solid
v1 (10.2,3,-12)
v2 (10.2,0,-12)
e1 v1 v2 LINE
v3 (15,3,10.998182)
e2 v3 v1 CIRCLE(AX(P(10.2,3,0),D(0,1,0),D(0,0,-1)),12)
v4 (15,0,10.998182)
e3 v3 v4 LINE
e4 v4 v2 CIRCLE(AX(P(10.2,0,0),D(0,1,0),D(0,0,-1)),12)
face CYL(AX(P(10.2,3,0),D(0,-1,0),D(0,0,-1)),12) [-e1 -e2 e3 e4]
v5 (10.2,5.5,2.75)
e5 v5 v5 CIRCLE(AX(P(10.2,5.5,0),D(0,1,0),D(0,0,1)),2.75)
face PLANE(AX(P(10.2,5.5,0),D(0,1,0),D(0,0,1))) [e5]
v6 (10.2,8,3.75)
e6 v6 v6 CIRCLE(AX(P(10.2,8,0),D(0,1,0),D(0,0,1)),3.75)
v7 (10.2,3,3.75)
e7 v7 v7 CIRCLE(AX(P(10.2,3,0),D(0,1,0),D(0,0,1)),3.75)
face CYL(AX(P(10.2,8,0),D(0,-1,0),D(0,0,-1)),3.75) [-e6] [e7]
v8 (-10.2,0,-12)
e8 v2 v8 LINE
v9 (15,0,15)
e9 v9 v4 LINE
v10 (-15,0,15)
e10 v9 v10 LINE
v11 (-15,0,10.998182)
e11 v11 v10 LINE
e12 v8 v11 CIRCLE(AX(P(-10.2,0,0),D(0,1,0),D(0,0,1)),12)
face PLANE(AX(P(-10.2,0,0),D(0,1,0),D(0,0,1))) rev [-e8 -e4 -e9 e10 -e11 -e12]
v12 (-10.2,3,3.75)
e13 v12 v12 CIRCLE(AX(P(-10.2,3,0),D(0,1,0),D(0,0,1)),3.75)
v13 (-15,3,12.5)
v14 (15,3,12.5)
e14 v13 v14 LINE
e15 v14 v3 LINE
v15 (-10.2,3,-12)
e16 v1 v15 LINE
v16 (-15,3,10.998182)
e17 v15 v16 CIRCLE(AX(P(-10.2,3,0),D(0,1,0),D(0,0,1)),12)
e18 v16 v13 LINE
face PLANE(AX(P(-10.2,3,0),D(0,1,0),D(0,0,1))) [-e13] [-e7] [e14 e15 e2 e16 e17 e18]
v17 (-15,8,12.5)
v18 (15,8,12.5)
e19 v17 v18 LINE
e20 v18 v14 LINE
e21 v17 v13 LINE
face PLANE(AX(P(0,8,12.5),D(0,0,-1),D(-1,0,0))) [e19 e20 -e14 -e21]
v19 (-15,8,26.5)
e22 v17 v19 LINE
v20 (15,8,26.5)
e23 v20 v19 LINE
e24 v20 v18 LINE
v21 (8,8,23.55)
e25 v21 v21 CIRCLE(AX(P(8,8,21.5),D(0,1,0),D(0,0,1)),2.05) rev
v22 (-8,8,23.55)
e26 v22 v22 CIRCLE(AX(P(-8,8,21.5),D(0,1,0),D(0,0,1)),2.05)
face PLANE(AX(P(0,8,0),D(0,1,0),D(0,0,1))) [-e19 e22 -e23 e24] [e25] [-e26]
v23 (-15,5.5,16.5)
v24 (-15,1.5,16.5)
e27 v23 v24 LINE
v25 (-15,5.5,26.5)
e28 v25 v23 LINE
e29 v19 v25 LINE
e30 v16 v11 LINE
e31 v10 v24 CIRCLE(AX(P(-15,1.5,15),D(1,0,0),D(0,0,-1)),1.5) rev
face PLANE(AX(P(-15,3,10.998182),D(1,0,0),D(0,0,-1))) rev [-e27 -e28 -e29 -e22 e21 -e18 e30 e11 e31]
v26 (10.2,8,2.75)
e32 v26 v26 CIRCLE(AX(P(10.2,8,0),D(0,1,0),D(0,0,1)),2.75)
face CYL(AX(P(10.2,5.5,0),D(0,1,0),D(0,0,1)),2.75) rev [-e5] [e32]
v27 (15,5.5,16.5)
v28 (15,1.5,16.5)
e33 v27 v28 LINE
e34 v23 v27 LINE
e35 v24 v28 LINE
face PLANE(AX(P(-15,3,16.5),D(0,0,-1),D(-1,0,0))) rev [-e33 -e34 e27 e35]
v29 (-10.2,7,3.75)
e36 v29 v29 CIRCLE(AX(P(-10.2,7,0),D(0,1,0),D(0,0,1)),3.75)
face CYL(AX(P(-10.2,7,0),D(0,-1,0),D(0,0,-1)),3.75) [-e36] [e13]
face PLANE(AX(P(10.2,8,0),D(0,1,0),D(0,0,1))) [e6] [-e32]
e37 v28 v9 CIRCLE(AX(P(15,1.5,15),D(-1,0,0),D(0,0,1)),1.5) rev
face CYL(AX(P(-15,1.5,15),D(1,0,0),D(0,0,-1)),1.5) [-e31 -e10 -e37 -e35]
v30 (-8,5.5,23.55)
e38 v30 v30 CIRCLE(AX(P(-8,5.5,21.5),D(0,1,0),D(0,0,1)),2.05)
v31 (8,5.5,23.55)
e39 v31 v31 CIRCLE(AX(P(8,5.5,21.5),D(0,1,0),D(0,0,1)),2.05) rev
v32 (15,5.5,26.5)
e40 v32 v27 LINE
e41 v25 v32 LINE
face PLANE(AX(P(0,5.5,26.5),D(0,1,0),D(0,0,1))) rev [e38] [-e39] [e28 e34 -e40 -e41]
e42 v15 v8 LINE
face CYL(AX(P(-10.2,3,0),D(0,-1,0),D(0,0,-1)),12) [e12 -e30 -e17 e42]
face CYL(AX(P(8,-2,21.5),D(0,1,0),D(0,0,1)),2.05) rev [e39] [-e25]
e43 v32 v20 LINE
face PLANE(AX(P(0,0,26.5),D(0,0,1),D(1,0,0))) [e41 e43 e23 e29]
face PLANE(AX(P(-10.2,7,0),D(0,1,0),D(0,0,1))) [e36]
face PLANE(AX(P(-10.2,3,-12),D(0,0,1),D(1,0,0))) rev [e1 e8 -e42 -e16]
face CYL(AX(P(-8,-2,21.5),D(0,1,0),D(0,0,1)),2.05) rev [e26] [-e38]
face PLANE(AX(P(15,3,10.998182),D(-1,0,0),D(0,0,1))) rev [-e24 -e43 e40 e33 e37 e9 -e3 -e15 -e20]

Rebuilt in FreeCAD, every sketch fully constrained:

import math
import FreeCAD as App
import Part
import Sketcher
Q = App.Units.Quantity


def edges_at(feature, points):
    """Names of the edges that pass closest to the given points."""
    edges = feature.Shape.Edges
    near = lambda p: min(range(len(edges)), key=lambda i: edges[i].distToShape(Part.Vertex(*p))[0])
    return sorted({f"Edge{near(p) + 1}" for p in points})

doc = App.newDocument("Part")
body = doc.addObject("PartDesign::Body", "Body")

sketch1 = body.newObject("Sketcher::SketchObject", "Sketch")
sketch1.AttachmentSupport = (doc.getObject("XZ_Plane"), [""])
sketch1.MapMode = "FlatFace"
sketch1.addGeometry(Part.LineSegment(App.Vector(10.2, -12, 0), App.Vector(-10.2, -12, 0)), False)
sketch1.addGeometry(Part.ArcOfCircle(Part.Circle(App.Vector(-10.2, 0, 0), App.Vector(0, 0, 1), 12), math.radians(113.578178), math.radians(270)), False)
sketch1.addGeometry(Part.LineSegment(App.Vector(-15, 10.998182, 0), App.Vector(-15, 16.5, 0)), False)
sketch1.addGeometry(Part.LineSegment(App.Vector(-15, 16.5, 0), App.Vector(15, 16.5, 0)), False)
sketch1.addGeometry(Part.LineSegment(App.Vector(15, 16.5, 0), App.Vector(15, 10.998182, 0)), False)
sketch1.addGeometry(Part.ArcOfCircle(Part.Circle(App.Vector(10.2, 0, 0), App.Vector(0, 0, 1), 12), math.radians(-90), math.radians(66.421822)), False)
sketch1.addConstraint(Sketcher.Constraint("Tangent", 0, 2, 1, 2))
sketch1.addConstraint(Sketcher.Constraint("Coincident", 1, 1, 2, 1))
sketch1.addConstraint(Sketcher.Constraint("Coincident", 2, 2, 3, 1))
sketch1.addConstraint(Sketcher.Constraint("Coincident", 3, 2, 4, 1))
sketch1.addConstraint(Sketcher.Constraint("Coincident", 4, 2, 5, 2))
sketch1.addConstraint(Sketcher.Constraint("Tangent", 5, 1, 0, 1))
sketch1.addConstraint(Sketcher.Constraint("Horizontal", 0))
sketch1.addConstraint(Sketcher.Constraint("Vertical", 2))
sketch1.addConstraint(Sketcher.Constraint("Horizontal", 3))
sketch1.addConstraint(Sketcher.Constraint("Vertical", 4))
sketch1.addConstraint(Sketcher.Constraint("Equal", 1, 5))
sketch1.addConstraint(Sketcher.Constraint("Symmetric", 1, 3, 5, 3, -1, 1))
sketch1.addConstraint(Sketcher.Constraint("Horizontal", 1, 1, 4, 2))
sketch1.addConstraint(Sketcher.Constraint("Radius", 1, Q("12 mm")))
sketch1.addConstraint(Sketcher.Constraint("DistanceX", 3, 1, 3, 2, Q("30 mm")))
sketch1.addConstraint(Sketcher.Constraint("DistanceX", 0, 2, 0, 1, Q("20.4 mm")))
sketch1.addConstraint(Sketcher.Constraint("DistanceY", -1, 1, 2, 2, Q("16.5 mm")))
pad1 = body.newObject("PartDesign::Pad", "Pad")
pad1.Profile = sketch1
pad1.Length = 3
pad1.Reversed = True

sketch2 = body.newObject("Sketcher::SketchObject", "Sketch001")
sketch2.AttachmentSupport = (doc.getObject("XZ_Plane"), [""])
sketch2.MapMode = "FlatFace"
sketch2.AttachmentOffset = App.Placement(App.Vector(0, 0, -3), App.Rotation())
sketch2.addGeometry(Part.Circle(App.Vector(10.2, 0, 0), App.Vector(0, 0, 1), 3.75), False)
sketch2.addConstraint(Sketcher.Constraint("PointOnObject", 0, 3, -1))
sketch2.addConstraint(Sketcher.Constraint("Diameter", 0, Q("7.5 mm")))
sketch2.addConstraint(Sketcher.Constraint("DistanceX", -1, 1, 0, 3, Q("10.2 mm")))
pad2 = body.newObject("PartDesign::Pad", "Pad001")
pad2.Profile = sketch2
pad2.Length = 5
pad2.Reversed = True

sketch3 = body.newObject("Sketcher::SketchObject", "Sketch002")
sketch3.AttachmentSupport = (doc.getObject("XZ_Plane"), [""])
sketch3.MapMode = "FlatFace"
sketch3.AttachmentOffset = App.Placement(App.Vector(0, 0, -3), App.Rotation())
sketch3.addGeometry(Part.LineSegment(App.Vector(-15, 12.5, 0), App.Vector(-15, 16.5, 0)), False)
sketch3.addGeometry(Part.LineSegment(App.Vector(-15, 16.5, 0), App.Vector(15, 16.5, 0)), False)
sketch3.addGeometry(Part.LineSegment(App.Vector(15, 16.5, 0), App.Vector(15, 12.5, 0)), False)
sketch3.addGeometry(Part.LineSegment(App.Vector(15, 12.5, 0), App.Vector(-15, 12.5, 0)), False)
sketch3.addConstraint(Sketcher.Constraint("Coincident", 0, 2, 1, 1))
sketch3.addConstraint(Sketcher.Constraint("Coincident", 1, 2, 2, 1))
sketch3.addConstraint(Sketcher.Constraint("Coincident", 2, 2, 3, 1))
sketch3.addConstraint(Sketcher.Constraint("Coincident", 3, 2, 0, 1))
sketch3.addConstraint(Sketcher.Constraint("Vertical", 0))
sketch3.addConstraint(Sketcher.Constraint("Horizontal", 1))
sketch3.addConstraint(Sketcher.Constraint("Vertical", 2))
sketch3.addConstraint(Sketcher.Constraint("Horizontal", 3))
sketch3.addConstraint(Sketcher.Constraint("DistanceX", 1, 1, 1, 2, Q("30 mm")))
sketch3.addConstraint(Sketcher.Constraint("DistanceY", 0, 1, 0, 2, Q("4 mm")))
sketch3.addConstraint(Sketcher.Constraint("DistanceX", 0, 2, -1, 1, Q("15 mm")))
sketch3.addConstraint(Sketcher.Constraint("DistanceY", -1, 1, 0, 2, Q("16.5 mm")))
pad3 = body.newObject("PartDesign::Pad", "Pad002")
pad3.Profile = sketch3
pad3.Length = 5
pad3.Reversed = True

sketch4 = body.newObject("Sketcher::SketchObject", "Sketch003")
sketch4.AttachmentSupport = (doc.getObject("XY_Plane"), [""])
sketch4.MapMode = "FlatFace"
sketch4.AttachmentOffset = App.Placement(App.Vector(0, 0, 16.5), App.Rotation())
sketch4.addGeometry(Part.LineSegment(App.Vector(-15, 8, 0), App.Vector(-15, 5.5, 0)), False)
sketch4.addGeometry(Part.LineSegment(App.Vector(-15, 5.5, 0), App.Vector(15, 5.5, 0)), False)
sketch4.addGeometry(Part.LineSegment(App.Vector(15, 5.5, 0), App.Vector(15, 8, 0)), False)
sketch4.addGeometry(Part.LineSegment(App.Vector(15, 8, 0), App.Vector(-15, 8, 0)), False)
sketch4.addConstraint(Sketcher.Constraint("Coincident", 0, 2, 1, 1))
sketch4.addConstraint(Sketcher.Constraint("Coincident", 1, 2, 2, 1))
sketch4.addConstraint(Sketcher.Constraint("Coincident", 2, 2, 3, 1))
sketch4.addConstraint(Sketcher.Constraint("Coincident", 3, 2, 0, 1))
sketch4.addConstraint(Sketcher.Constraint("Vertical", 0))
sketch4.addConstraint(Sketcher.Constraint("Horizontal", 1))
sketch4.addConstraint(Sketcher.Constraint("Vertical", 2))
sketch4.addConstraint(Sketcher.Constraint("Horizontal", 3))
sketch4.addConstraint(Sketcher.Constraint("DistanceX", 1, 1, 1, 2, Q("30 mm")))
sketch4.addConstraint(Sketcher.Constraint("DistanceY", 0, 2, 0, 1, Q("2.5 mm")))
sketch4.addConstraint(Sketcher.Constraint("DistanceX", 0, 2, -1, 1, Q("15 mm")))
sketch4.addConstraint(Sketcher.Constraint("DistanceY", -1, 1, 2, 2, Q("8 mm")))
pad4 = body.newObject("PartDesign::Pad", "Pad003")
pad4.Profile = sketch4
pad4.Length = 10

sketch5 = body.newObject("Sketcher::SketchObject", "Sketch004")
sketch5.AttachmentSupport = (doc.getObject("XZ_Plane"), [""])
sketch5.MapMode = "FlatFace"
sketch5.AttachmentOffset = App.Placement(App.Vector(0, 0, -8), App.Rotation())
sketch5.addGeometry(Part.Circle(App.Vector(8, 21.5, 0), App.Vector(0, 0, 1), 2.05), False)
sketch5.addGeometry(Part.Circle(App.Vector(-8, 21.5, 0), App.Vector(0, 0, 1), 2.05), False)
sketch5.addConstraint(Sketcher.Constraint("Equal", 0, 1))
sketch5.addConstraint(Sketcher.Constraint("Symmetric", 0, 3, 1, 3, -2))
sketch5.addConstraint(Sketcher.Constraint("Diameter", 0, Q("4.1 mm")))
sketch5.addConstraint(Sketcher.Constraint("DistanceX", -1, 1, 0, 3, Q("8 mm")))
sketch5.addConstraint(Sketcher.Constraint("DistanceY", -1, 1, 0, 3, Q("21.5 mm")))
pocket1 = body.newObject("PartDesign::Pocket", "Pocket")
pocket1.Profile = sketch5
pocket1.Length = 10
pocket1.Reversed = True

sketch6 = body.newObject("Sketcher::SketchObject", "Sketch005")
sketch6.AttachmentSupport = (doc.getObject("XZ_Plane"), [""])
sketch6.MapMode = "FlatFace"
sketch6.AttachmentOffset = App.Placement(App.Vector(0, 0, -8), App.Rotation())
sketch6.addGeometry(Part.Circle(App.Vector(10.2, 0, 0), App.Vector(0, 0, 1), 2.75), False)
sketch6.addConstraint(Sketcher.Constraint("PointOnObject", 0, 3, -1))
sketch6.addConstraint(Sketcher.Constraint("Diameter", 0, Q("5.5 mm")))
sketch6.addConstraint(Sketcher.Constraint("DistanceX", -1, 1, 0, 3, Q("10.2 mm")))
pocket2 = body.newObject("PartDesign::Pocket", "Pocket001")
pocket2.Profile = sketch6
pocket2.Length = 2.5
pocket2.Reversed = True

sketch7 = body.newObject("Sketcher::SketchObject", "Sketch006")
sketch7.AttachmentSupport = (doc.getObject("XZ_Plane"), [""])
sketch7.MapMode = "FlatFace"
sketch7.AttachmentOffset = App.Placement(App.Vector(0, 0, -3), App.Rotation())
sketch7.addGeometry(Part.Circle(App.Vector(-10.2, 0, 0), App.Vector(0, 0, 1), 3.75), False)
sketch7.addConstraint(Sketcher.Constraint("PointOnObject", 0, 3, -1))
sketch7.addConstraint(Sketcher.Constraint("Diameter", 0, Q("7.5 mm")))
sketch7.addConstraint(Sketcher.Constraint("DistanceX", 0, 3, -1, 1, Q("10.2 mm")))
pad5 = body.newObject("PartDesign::Pad", "Pad004")
pad5.Profile = sketch7
pad5.Length = 4
pad5.Reversed = True
doc.recompute()

fillet = body.newObject("PartDesign::Fillet", "Fillet")
fillet.Base = (pad5, edges_at(pad5, [(0, 0, 16.5)]))
fillet.Radius = 1.5

doc.recompute()
